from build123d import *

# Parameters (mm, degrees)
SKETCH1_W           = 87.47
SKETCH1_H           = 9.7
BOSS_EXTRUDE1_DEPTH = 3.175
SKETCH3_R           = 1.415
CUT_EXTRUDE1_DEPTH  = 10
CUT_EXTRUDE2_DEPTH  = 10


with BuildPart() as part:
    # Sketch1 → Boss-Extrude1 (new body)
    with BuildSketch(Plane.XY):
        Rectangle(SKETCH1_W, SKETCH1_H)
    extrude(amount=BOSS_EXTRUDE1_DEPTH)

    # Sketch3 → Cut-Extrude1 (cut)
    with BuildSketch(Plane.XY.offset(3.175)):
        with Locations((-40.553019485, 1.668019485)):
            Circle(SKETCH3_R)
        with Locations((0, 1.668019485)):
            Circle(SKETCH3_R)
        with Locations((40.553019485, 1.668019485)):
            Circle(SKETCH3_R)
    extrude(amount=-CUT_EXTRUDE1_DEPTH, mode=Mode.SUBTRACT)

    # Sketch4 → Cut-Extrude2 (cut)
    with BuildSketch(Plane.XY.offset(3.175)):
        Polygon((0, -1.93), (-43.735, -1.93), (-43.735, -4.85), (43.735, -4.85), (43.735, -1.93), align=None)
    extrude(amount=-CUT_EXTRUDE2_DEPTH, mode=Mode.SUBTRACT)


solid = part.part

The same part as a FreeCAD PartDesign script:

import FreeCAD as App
import Part
import Sketcher

V = App.Vector


def add_polygon(sketch, points):
    """Adds a closed chain of lines whose ends are joined by coincident constraints."""
    first, n = sketch.GeometryCount, len(points)
    for a, b in zip(points, points[1:] + points[:1]):
        sketch.addGeometry(Part.LineSegment(App.Vector(*a, 0), App.Vector(*b, 0)), False)
    for i in range(n):
        sketch.addConstraint(Sketcher.Constraint("Coincident", first + i, 2, first + (i + 1) % n, 1))

doc = App.newDocument("Part")
body = doc.addObject("PartDesign::Body", "Body")

sketch1 = doc.addObject("Sketcher::SketchObject", "Sketch")
body.addObject(sketch1)
sketch1.AttachmentSupport = (doc.XY_Plane, [""])
sketch1.MapMode = "FlatFace"
add_polygon(sketch1, [(-43.735, 4.85), (-43.735, -4.85), (43.735, -4.85), (43.735, 4.85)])
sketch1.addConstraint([
    Sketcher.Constraint("Vertical", 0),
    Sketcher.Constraint("Horizontal", 1),
    Sketcher.Constraint("Vertical", 2),
    Sketcher.Constraint("Horizontal", 3),
    Sketcher.Constraint("Symmetric", 0, 2, 2, 2, -1, 1),
    Sketcher.Constraint("DistanceY", 0, 2, 0, 1, 9.7),
    Sketcher.Constraint("DistanceX", 1, 1, 1, 2, 87.47),
])
pad1 = doc.addObject("PartDesign::Pad", "Pad")
body.addObject(pad1)
pad1.Profile = sketch1
pad1.Length = 3.175

sketch2 = doc.addObject("Sketcher::SketchObject", "Sketch001")
body.addObject(sketch2)
sketch2.AttachmentSupport = (doc.XY_Plane, [""])
sketch2.MapMode = "FlatFace"
sketch2.AttachmentOffset = App.Placement(V(0, 0, 3.175), App.Rotation())
sketch2.addGeometry([
    Part.Circle(V(-40.553019, 1.668019, 0), V(0, 0, 1), 1.415),
    Part.Circle(V(0, 1.668019, 0), V(0, 0, 1), 1.415),
    Part.Circle(V(40.553019, 1.668019, 0), V(0, 0, 1), 1.415),
], False)
sketch2.addConstraint([
    Sketcher.Constraint("Equal", 0, 1),
    Sketcher.Constraint("Equal", 1, 2),
    Sketcher.Constraint("Symmetric", 0, 3, 2, 3, -2),
    Sketcher.Constraint("PointOnObject", 1, 3, -2),
    Sketcher.Constraint("Horizontal", 0, 3, 1, 3),
    Sketcher.Constraint("Diameter", 0, 2.83),
    Sketcher.Constraint("DistanceX", 0, 3, -1, 1, 40.553019),
    Sketcher.Constraint("DistanceY", -1, 1, 0, 3, 1.668019),
])
pocket1 = doc.addObject("PartDesign::Pocket", "Pocket")
body.addObject(pocket1)
pocket1.Profile = sketch2
pocket1.Length = 10

sketch3 = doc.addObject("Sketcher::SketchObject", "Sketch002")
body.addObject(sketch3)
sketch3.AttachmentSupport = (doc.XY_Plane, [""])
sketch3.MapMode = "FlatFace"
sketch3.AttachmentOffset = App.Placement(V(0, 0, 3.175), App.Rotation())
add_polygon(sketch3, [(-43.735, -1.93), (-43.735, -4.85), (43.735, -4.85), (43.735, -1.93)])
sketch3.addConstraint([
    Sketcher.Constraint("Vertical", 0),
    Sketcher.Constraint("Horizontal", 1),
    Sketcher.Constraint("Vertical", 2),
    Sketcher.Constraint("Horizontal", 3),
    Sketcher.Constraint("DistanceX", 1, 1, 1, 2, 87.47),
    Sketcher.Constraint("DistanceY", 0, 2, 0, 1, 2.92),
    Sketcher.Constraint("DistanceY", 0, 2, -1, 1, 4.85),
    Sketcher.Constraint("DistanceX", 0, 2, -1, 1, 43.735),
])
pocket2 = doc.addObject("PartDesign::Pocket", "Pocket001")
body.addObject(pocket2)
pocket2.Profile = sketch3
pocket2.Length = 10

doc.recompute()
